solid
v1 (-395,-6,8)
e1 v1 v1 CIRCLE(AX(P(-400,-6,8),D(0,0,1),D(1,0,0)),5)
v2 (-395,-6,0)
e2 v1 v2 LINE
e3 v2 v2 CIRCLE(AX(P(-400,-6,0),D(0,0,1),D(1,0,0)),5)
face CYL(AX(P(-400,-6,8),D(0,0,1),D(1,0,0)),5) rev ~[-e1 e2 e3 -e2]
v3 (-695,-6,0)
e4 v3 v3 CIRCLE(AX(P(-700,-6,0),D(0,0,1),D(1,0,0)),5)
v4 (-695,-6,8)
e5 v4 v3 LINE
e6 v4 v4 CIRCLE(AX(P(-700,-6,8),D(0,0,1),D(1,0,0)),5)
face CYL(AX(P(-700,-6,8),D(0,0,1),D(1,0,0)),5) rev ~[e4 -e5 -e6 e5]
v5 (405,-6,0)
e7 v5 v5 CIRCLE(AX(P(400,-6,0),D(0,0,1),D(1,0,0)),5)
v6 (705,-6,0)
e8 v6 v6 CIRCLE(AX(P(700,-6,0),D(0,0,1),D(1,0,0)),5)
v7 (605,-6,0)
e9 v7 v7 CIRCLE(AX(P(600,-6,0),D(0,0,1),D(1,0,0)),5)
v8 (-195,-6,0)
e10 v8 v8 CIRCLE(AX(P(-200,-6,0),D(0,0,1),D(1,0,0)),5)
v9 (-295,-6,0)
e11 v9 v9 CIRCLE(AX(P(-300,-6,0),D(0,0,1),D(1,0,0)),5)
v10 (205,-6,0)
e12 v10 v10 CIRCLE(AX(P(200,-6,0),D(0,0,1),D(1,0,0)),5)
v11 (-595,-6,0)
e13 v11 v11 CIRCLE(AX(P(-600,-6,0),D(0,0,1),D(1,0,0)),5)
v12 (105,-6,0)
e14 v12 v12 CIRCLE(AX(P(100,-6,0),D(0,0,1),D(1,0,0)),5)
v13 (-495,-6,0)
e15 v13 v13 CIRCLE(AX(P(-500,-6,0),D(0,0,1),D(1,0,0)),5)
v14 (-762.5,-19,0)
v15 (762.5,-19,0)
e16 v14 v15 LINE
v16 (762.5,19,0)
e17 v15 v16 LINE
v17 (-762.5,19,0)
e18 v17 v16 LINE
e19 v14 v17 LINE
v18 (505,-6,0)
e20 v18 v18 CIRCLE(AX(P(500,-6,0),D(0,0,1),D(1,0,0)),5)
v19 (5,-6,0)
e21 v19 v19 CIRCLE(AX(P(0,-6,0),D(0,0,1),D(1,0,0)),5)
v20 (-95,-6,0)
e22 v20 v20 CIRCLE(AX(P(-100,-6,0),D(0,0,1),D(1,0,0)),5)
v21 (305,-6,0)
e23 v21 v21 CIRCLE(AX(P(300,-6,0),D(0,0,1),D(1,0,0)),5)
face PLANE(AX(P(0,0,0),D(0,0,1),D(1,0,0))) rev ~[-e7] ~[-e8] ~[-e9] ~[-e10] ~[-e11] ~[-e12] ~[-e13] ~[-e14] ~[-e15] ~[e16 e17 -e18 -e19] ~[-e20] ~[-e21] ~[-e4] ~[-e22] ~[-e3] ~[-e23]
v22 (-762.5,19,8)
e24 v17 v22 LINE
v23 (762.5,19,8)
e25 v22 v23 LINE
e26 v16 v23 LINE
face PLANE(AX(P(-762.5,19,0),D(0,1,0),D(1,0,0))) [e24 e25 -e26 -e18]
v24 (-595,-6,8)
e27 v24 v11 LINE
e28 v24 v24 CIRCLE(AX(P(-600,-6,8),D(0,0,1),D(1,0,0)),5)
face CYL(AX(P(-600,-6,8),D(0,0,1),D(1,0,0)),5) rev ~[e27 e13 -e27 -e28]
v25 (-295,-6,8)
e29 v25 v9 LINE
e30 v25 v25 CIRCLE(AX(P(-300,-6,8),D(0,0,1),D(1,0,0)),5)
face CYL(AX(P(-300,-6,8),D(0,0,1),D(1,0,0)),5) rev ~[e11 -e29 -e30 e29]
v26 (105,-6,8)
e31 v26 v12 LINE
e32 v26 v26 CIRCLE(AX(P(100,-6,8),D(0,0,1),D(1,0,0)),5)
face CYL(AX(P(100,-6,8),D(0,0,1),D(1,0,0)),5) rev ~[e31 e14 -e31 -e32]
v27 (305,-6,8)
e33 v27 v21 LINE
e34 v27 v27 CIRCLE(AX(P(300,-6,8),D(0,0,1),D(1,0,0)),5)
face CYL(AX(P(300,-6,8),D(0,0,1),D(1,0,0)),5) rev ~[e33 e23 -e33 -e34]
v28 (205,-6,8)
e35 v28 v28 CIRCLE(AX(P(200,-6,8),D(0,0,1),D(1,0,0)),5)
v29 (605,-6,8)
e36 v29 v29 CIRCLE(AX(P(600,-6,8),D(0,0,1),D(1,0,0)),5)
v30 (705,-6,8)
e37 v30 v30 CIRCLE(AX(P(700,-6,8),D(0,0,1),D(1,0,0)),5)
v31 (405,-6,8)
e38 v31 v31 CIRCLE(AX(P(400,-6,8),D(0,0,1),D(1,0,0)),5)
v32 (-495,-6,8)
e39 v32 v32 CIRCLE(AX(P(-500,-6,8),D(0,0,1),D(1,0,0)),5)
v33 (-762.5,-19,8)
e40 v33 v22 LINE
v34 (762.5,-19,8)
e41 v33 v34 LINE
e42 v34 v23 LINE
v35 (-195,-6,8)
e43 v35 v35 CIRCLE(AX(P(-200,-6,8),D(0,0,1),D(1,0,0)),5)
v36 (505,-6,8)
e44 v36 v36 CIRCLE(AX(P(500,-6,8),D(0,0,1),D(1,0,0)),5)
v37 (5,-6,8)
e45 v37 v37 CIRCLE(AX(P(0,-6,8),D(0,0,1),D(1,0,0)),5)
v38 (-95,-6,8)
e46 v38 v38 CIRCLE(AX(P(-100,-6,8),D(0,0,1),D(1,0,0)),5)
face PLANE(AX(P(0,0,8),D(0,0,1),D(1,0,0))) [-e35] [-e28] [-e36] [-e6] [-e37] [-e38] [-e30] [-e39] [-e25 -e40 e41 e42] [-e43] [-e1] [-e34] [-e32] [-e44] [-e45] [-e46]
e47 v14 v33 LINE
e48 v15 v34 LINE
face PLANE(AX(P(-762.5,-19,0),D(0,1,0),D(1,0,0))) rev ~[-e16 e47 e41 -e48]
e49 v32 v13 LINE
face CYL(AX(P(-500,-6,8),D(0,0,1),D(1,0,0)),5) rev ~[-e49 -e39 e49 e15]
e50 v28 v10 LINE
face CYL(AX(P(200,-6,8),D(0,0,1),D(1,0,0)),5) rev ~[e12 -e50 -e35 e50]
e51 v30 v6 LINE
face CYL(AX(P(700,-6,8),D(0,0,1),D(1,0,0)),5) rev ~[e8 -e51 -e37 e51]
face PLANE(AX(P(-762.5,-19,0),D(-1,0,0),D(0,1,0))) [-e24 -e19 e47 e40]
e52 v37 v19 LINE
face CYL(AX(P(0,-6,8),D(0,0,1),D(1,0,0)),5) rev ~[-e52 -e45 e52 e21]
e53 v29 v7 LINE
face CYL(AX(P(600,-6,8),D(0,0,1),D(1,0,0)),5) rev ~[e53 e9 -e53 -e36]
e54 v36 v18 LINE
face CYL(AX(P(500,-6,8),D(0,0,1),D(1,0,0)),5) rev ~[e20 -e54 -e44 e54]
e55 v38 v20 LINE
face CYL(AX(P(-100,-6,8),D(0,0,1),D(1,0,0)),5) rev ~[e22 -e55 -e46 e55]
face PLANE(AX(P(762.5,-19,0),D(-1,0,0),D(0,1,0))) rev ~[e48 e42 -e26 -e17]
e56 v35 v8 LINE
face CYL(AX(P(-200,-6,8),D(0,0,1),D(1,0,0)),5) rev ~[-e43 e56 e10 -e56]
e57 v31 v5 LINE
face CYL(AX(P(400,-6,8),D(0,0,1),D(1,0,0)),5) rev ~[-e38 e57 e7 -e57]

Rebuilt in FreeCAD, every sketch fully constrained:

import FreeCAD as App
import Part
import Sketcher
Q = App.Units.Quantity


def add_polygon(sketch, points):
    """Adds a closed chain of lines whose ends are joined by coincident constraints."""
    first, n = sketch.GeometryCount, len(points)
    for a, b in zip(points, points[1:] + points[:1]):
        sketch.addGeometry(Part.LineSegment(App.Vector(*a, 0), App.Vector(*b, 0)), False)
    for i in range(n):
        sketch.addConstraint(Sketcher.Constraint("Coincident", first + i, 2, first + (i + 1) % n, 1))

doc = App.newDocument("Part")
body = doc.addObject("PartDesign::Body", "Body")

sketch1 = doc.addObject("Sketcher::SketchObject", "Sketch")
body.addObject(sketch1)
sketch1.AttachmentSupport = (doc.XY_Plane, [""])
sketch1.MapMode = "FlatFace"
add_polygon(sketch1, [(-762, 19), (-762, -19), (762, -19), (762, 19)])
sketch1.addConstraint([
    Sketcher.Constraint("Vertical", 0),
    Sketcher.Constraint("Horizontal", 1),
    Sketcher.Constraint("Vertical", 2),
    Sketcher.Constraint("Horizontal", 3),
    Sketcher.Constraint("Symmetric", 0, 2, 2, 2, -1, 1),
    Sketcher.Constraint("DistanceX", 1, 1, 1, 2, Q("1525 mm")),
    Sketcher.Constraint("DistanceY", 0, 2, 0, 1, Q("38 mm")),
])
pad1 = doc.addObject("PartDesign::Pad", "Pad")
body.addObject(pad1)
pad1.Profile = sketch1
pad1.Length = 8

sketch2 = doc.addObject("Sketcher::SketchObject", "Sketch001")
body.addObject(sketch2)
sketch2.AttachmentSupport = (doc.XY_Plane, [""])
sketch2.MapMode = "FlatFace"
sketch2.AttachmentOffset = App.Placement(App.Vector(0, 0, 8), App.Rotation())
sketch2.addGeometry([
    Part.Circle(App.Vector(-700, -6, 0), App.Vector(0, 0, 1), 5),
    Part.Circle(App.Vector(-600, -6, 0), App.Vector(0, 0, 1), 5),
    Part.Circle(App.Vector(-500, -6, 0), App.Vector(0, 0, 1), 5),
    Part.Circle(App.Vector(-400, -6, 0), App.Vector(0, 0, 1), 5),
    Part.Circle(App.Vector(-300, -6, 0), App.Vector(0, 0, 1), 5),
    Part.Circle(App.Vector(-200, -6, 0), App.Vector(0, 0, 1), 5),
    Part.Circle(App.Vector(-100, -6, 0), App.Vector(0, 0, 1), 5),
    Part.Circle(App.Vector(0, -6, 0), App.Vector(0, 0, 1), 5),
    Part.Circle(App.Vector(100, -6, 0), App.Vector(0, 0, 1), 5),
    Part.Circle(App.Vector(200, -6, 0), App.Vector(0, 0, 1), 5),
    Part.Circle(App.Vector(300, -6, 0), App.Vector(0, 0, 1), 5),
    Part.Circle(App.Vector(400, -6, 0), App.Vector(0, 0, 1), 5),
    Part.Circle(App.Vector(500, -6, 0), App.Vector(0, 0, 1), 5),
    Part.Circle(App.Vector(600, -6, 0), App.Vector(0, 0, 1), 5),
    Part.Circle(App.Vector(700, -6, 0), App.Vector(0, 0, 1), 5),
], False)
sketch2.addConstraint([
    Sketcher.Constraint("Equal", 0, 1),
    Sketcher.Constraint("Equal", 1, 2),
    Sketcher.Constraint("Equal", 2, 3),
    Sketcher.Constraint("Equal", 3, 4),
    Sketcher.Constraint("Equal", 4, 5),
    Sketcher.Constraint("Equal", 5, 6),
    Sketcher.Constraint("Equal", 6, 7),
    Sketcher.Constraint("Equal", 7, 8),
    Sketcher.Constraint("Equal", 8, 9),
    Sketcher.Constraint("Equal", 9, 10),
    Sketcher.Constraint("Equal", 10, 11),
    Sketcher.Constraint("Equal", 11, 12),
    Sketcher.Constraint("Equal", 12, 13),
    Sketcher.Constraint("Equal", 13, 14),
    Sketcher.Constraint("Symmetric", 6, 3, 8, 3, -2),
    Sketcher.Constraint("Symmetric", 5, 3, 9, 3, -2),
    Sketcher.Constraint("Symmetric", 4, 3, 10, 3, -2),
    Sketcher.Constraint("Symmetric", 3, 3, 11, 3, -2),
    Sketcher.Constraint("Symmetric", 2, 3, 12, 3, -2),
    Sketcher.Constraint("Symmetric", 1, 3, 13, 3, -2),
    Sketcher.Constraint("Symmetric", 0, 3, 14, 3, -2),
    Sketcher.Constraint("PointOnObject", 7, 3, -2),
    Sketcher.Constraint("Horizontal", 0, 3, 1, 3),
    Sketcher.Constraint("Horizontal", 1, 3, 2, 3),
    Sketcher.Constraint("Horizontal", 2, 3, 3, 3),
    Sketcher.Constraint("Horizontal", 3, 3, 4, 3),
    Sketcher.Constraint("Horizontal", 4, 3, 5, 3),
    Sketcher.Constraint("Horizontal", 5, 3, 6, 3),
    Sketcher.Constraint("Horizontal", 6, 3, 7, 3),
    Sketcher.Constraint("Diameter", 0, Q("10 mm")),
    Sketcher.Constraint("DistanceX", 0, 3, -1, 1, Q("700 mm")),
    Sketcher.Constraint("DistanceY", 0, 3, -1, 1, Q("6 mm")),
    Sketcher.Constraint("DistanceX", 1, 3, -1, 1, Q("600 mm")),
    Sketcher.Constraint("DistanceX", 2, 3, -1, 1, Q("500 mm")),
    Sketcher.Constraint("DistanceX", 3, 3, -1, 1, Q("400 mm")),
    Sketcher.Constraint("DistanceX", 4, 3, -1, 1, Q("300 mm")),
    Sketcher.Constraint("DistanceX", 5, 3, -1, 1, Q("200 mm")),
    Sketcher.Constraint("DistanceX", 6, 3, -1, 1, Q("100 mm")),
])
pocket1 = doc.addObject("PartDesign::Pocket", "Pocket")
body.addObject(pocket1)
pocket1.Profile = sketch2
pocket1.Type = "ThroughAll"

doc.recompute()
